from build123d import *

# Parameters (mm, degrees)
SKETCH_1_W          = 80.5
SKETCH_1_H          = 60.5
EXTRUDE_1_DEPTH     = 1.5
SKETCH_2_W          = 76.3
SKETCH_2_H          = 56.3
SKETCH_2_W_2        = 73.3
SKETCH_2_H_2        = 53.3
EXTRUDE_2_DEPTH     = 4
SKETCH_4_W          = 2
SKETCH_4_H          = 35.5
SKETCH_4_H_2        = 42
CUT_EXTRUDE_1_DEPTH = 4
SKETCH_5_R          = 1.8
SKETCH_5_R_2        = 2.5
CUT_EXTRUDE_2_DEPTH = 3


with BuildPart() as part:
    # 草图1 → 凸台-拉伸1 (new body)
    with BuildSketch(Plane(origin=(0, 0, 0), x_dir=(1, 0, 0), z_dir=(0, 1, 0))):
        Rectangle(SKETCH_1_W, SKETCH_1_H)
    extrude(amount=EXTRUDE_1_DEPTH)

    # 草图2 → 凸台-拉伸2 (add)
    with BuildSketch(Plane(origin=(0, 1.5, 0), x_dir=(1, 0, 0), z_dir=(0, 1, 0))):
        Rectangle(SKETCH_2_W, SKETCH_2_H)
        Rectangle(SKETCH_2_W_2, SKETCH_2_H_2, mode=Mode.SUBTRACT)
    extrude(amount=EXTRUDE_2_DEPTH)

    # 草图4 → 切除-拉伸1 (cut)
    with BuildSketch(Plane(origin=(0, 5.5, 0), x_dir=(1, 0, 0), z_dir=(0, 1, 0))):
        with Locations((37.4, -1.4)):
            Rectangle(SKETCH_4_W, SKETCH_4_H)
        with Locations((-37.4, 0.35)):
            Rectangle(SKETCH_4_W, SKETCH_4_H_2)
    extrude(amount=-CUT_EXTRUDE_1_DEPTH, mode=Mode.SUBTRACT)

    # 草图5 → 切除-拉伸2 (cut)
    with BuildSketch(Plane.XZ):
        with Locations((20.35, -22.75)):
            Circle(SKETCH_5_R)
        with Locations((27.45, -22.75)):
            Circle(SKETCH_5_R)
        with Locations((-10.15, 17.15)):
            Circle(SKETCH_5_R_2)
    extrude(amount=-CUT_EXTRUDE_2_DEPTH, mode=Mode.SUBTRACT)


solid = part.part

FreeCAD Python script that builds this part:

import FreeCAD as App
import Part
import Sketcher
Q = App.Units.Quantity


def add_polygon(sketch, points):
    """Adds a closed chain of lines whose ends are joined by coincident constraints."""
    first, n = sketch.GeometryCount, len(points)
    for a, b in zip(points, points[1:] + points[:1]):
        sketch.addGeometry(Part.LineSegment(App.Vector(*a, 0), App.Vector(*b, 0)), False)
    for i in range(n):
        sketch.addConstraint(Sketcher.Constraint("Coincident", first + i, 2, first + (i + 1) % n, 1))

doc = App.newDocument("Part")
body = doc.addObject("PartDesign::Body", "Body")

sketch1 = doc.addObject("Sketcher::SketchObject", "Sketch")
body.addObject(sketch1)
sketch1.AttachmentSupport = (doc.XZ_Plane, [""])
sketch1.MapMode = "FlatFace"
add_polygon(sketch1, [(-40, -30), (-40, 30), (40, 30), (40, -30)])
sketch1.addConstraint([
    Sketcher.Constraint("Vertical", 0),
    Sketcher.Constraint("Horizontal", 1),
    Sketcher.Constraint("Vertical", 2),
    Sketcher.Constraint("Horizontal", 3),
    Sketcher.Constraint("Symmetric", 0, 2, 2, 2, -1, 1),
    Sketcher.Constraint("DistanceX", 1, 1, 1, 2, Q("80.5 mm")),
    Sketcher.Constraint("DistanceY", 0, 1, 0, 2, Q("60.5 mm")),
])
pad1 = doc.addObject("PartDesign::Pad", "Pad")
body.addObject(pad1)
pad1.Profile = sketch1
pad1.Length = 1.5
pad1.Reversed = True

sketch2 = doc.addObject("Sketcher::SketchObject", "Sketch001")
body.addObject(sketch2)
sketch2.AttachmentSupport = (doc.XZ_Plane, [""])
sketch2.MapMode = "FlatFace"
sketch2.AttachmentOffset = App.Placement(App.Vector(0, 0, -1.5), App.Rotation())
add_polygon(sketch2, [(-38, -28), (-38, 28), (38, 28), (38, -28)])
add_polygon(sketch2, [(37, 27), (-37, 27), (-37, -27), (37, -27)])
sketch2.addConstraint([
    Sketcher.Constraint("Vertical", 0),
    Sketcher.Constraint("Horizontal", 1),
    Sketcher.Constraint("Vertical", 2),
    Sketcher.Constraint("Horizontal", 3),
    Sketcher.Constraint("Horizontal", 4),
    Sketcher.Constraint("Vertical", 5),
    Sketcher.Constraint("Horizontal", 6),
    Sketcher.Constraint("Vertical", 7),
    Sketcher.Constraint("Symmetric", 0, 2, 2, 2, -1, 1),
    Sketcher.Constraint("Symmetric", 4, 2, 6, 2, -1, 1),
    Sketcher.Constraint("DistanceX", 1, 1, 1, 2, Q("76.3 mm")),
    Sketcher.Constraint("DistanceX", 4, 2, 4, 1, Q("73.3 mm")),
    Sketcher.Constraint("DistanceY", 0, 1, 0, 2, Q("56.3 mm")),
    Sketcher.Constraint("DistanceY", 5, 2, 5, 1, Q("53.3 mm")),
])
pad2 = doc.addObject("PartDesign::Pad", "Pad001")
body.addObject(pad2)
pad2.Profile = sketch2
pad2.Length = 4
pad2.Reversed = True

sketch3 = doc.addObject("Sketcher::SketchObject", "Sketch002")
body.addObject(sketch3)
sketch3.AttachmentSupport = (doc.XZ_Plane, [""])
sketch3.MapMode = "FlatFace"
sketch3.AttachmentOffset = App.Placement(App.Vector(0, 0, -5.5), App.Rotation())
add_polygon(sketch3, [(36.4, -16.4), (36.4, 19.1), (38.4, 19.1), (38.4, -16.4)])
add_polygon(sketch3, [(-38.4, -21.4), (-38.4, 20.6), (-36.4, 20.6), (-36.4, -21.4)])
sketch3.addConstraint([
    Sketcher.Constraint("Vertical", 0),
    Sketcher.Constraint("Horizontal", 1),
    Sketcher.Constraint("Vertical", 2),
    Sketcher.Constraint("Horizontal", 3),
    Sketcher.Constraint("Vertical", 4),
    Sketcher.Constraint("Horizontal", 5),
    Sketcher.Constraint("Vertical", 6),
    Sketcher.Constraint("Horizontal", 7),
    Sketcher.Constraint("Equal", 3, 5),
    Sketcher.Constraint("DistanceX", 1, 1, 1, 2, Q("2 mm")),
    Sketcher.Constraint("DistanceY", 4, 1, 4, 2, Q("42 mm")),
    Sketcher.Constraint("DistanceY", 0, 1, 0, 2, Q("35.5 mm")),
    Sketcher.Constraint("DistanceY", 3, 2, 4, 2, Q("37 mm")),
    Sketcher.Constraint("DistanceX", -1, 1, 0, 2, Q("36.4 mm")),
    Sketcher.Constraint("DistanceX", 4, 2, -1, 1, Q("38.4 mm")),
    Sketcher.Constraint("DistanceY", -1, 1, 0, 2, Q("19.15 mm")),
])
pocket1 = doc.addObject("PartDesign::Pocket", "Pocket")
body.addObject(pocket1)
pocket1.Profile = sketch3
pocket1.Length = 4
pocket1.Reversed = True

sketch4 = doc.addObject("Sketcher::SketchObject", "Sketch003")
body.addObject(sketch4)
sketch4.AttachmentSupport = (doc.XZ_Plane, [""])
sketch4.MapMode = "FlatFace"
sketch4.addGeometry([
    Part.Circle(App.Vector(20.4, -22.8, 0), App.Vector(0, 0, 1), 1.8),
    Part.Circle(App.Vector(27.4, -22.8, 0), App.Vector(0, 0, 1), 1.8),
    Part.Circle(App.Vector(-10.2, 17.1, 0), App.Vector(0, 0, 1), 2.5),
], False)
sketch4.addConstraint([
    Sketcher.Constraint("Equal", 0, 1),
    Sketcher.Constraint("Horizontal", 0, 3, 1, 3),
    Sketcher.Constraint("Diameter", 2, Q("5 mm")),
    Sketcher.Constraint("Diameter", 0, Q("3.6 mm")),
    Sketcher.Constraint("DistanceX", 0, 3, 1, 3, Q("7.1 mm")),
    Sketcher.Constraint("DistanceX", 2, 3, 0, 3, Q("30.5 mm")),
    Sketcher.Constraint("DistanceY", 0, 3, 2, 3, Q("39.9 mm")),
    Sketcher.Constraint("DistanceX", -1, 1, 0, 3, Q("20.35 mm")),
    Sketcher.Constraint("DistanceY", 0, 3, -1, 1, Q("22.75 mm")),
])
pocket2 = doc.addObject("PartDesign::Pocket", "Pocket001")
body.addObject(pocket2)
pocket2.Profile = sketch4
pocket2.Length = 3

doc.recompute()
